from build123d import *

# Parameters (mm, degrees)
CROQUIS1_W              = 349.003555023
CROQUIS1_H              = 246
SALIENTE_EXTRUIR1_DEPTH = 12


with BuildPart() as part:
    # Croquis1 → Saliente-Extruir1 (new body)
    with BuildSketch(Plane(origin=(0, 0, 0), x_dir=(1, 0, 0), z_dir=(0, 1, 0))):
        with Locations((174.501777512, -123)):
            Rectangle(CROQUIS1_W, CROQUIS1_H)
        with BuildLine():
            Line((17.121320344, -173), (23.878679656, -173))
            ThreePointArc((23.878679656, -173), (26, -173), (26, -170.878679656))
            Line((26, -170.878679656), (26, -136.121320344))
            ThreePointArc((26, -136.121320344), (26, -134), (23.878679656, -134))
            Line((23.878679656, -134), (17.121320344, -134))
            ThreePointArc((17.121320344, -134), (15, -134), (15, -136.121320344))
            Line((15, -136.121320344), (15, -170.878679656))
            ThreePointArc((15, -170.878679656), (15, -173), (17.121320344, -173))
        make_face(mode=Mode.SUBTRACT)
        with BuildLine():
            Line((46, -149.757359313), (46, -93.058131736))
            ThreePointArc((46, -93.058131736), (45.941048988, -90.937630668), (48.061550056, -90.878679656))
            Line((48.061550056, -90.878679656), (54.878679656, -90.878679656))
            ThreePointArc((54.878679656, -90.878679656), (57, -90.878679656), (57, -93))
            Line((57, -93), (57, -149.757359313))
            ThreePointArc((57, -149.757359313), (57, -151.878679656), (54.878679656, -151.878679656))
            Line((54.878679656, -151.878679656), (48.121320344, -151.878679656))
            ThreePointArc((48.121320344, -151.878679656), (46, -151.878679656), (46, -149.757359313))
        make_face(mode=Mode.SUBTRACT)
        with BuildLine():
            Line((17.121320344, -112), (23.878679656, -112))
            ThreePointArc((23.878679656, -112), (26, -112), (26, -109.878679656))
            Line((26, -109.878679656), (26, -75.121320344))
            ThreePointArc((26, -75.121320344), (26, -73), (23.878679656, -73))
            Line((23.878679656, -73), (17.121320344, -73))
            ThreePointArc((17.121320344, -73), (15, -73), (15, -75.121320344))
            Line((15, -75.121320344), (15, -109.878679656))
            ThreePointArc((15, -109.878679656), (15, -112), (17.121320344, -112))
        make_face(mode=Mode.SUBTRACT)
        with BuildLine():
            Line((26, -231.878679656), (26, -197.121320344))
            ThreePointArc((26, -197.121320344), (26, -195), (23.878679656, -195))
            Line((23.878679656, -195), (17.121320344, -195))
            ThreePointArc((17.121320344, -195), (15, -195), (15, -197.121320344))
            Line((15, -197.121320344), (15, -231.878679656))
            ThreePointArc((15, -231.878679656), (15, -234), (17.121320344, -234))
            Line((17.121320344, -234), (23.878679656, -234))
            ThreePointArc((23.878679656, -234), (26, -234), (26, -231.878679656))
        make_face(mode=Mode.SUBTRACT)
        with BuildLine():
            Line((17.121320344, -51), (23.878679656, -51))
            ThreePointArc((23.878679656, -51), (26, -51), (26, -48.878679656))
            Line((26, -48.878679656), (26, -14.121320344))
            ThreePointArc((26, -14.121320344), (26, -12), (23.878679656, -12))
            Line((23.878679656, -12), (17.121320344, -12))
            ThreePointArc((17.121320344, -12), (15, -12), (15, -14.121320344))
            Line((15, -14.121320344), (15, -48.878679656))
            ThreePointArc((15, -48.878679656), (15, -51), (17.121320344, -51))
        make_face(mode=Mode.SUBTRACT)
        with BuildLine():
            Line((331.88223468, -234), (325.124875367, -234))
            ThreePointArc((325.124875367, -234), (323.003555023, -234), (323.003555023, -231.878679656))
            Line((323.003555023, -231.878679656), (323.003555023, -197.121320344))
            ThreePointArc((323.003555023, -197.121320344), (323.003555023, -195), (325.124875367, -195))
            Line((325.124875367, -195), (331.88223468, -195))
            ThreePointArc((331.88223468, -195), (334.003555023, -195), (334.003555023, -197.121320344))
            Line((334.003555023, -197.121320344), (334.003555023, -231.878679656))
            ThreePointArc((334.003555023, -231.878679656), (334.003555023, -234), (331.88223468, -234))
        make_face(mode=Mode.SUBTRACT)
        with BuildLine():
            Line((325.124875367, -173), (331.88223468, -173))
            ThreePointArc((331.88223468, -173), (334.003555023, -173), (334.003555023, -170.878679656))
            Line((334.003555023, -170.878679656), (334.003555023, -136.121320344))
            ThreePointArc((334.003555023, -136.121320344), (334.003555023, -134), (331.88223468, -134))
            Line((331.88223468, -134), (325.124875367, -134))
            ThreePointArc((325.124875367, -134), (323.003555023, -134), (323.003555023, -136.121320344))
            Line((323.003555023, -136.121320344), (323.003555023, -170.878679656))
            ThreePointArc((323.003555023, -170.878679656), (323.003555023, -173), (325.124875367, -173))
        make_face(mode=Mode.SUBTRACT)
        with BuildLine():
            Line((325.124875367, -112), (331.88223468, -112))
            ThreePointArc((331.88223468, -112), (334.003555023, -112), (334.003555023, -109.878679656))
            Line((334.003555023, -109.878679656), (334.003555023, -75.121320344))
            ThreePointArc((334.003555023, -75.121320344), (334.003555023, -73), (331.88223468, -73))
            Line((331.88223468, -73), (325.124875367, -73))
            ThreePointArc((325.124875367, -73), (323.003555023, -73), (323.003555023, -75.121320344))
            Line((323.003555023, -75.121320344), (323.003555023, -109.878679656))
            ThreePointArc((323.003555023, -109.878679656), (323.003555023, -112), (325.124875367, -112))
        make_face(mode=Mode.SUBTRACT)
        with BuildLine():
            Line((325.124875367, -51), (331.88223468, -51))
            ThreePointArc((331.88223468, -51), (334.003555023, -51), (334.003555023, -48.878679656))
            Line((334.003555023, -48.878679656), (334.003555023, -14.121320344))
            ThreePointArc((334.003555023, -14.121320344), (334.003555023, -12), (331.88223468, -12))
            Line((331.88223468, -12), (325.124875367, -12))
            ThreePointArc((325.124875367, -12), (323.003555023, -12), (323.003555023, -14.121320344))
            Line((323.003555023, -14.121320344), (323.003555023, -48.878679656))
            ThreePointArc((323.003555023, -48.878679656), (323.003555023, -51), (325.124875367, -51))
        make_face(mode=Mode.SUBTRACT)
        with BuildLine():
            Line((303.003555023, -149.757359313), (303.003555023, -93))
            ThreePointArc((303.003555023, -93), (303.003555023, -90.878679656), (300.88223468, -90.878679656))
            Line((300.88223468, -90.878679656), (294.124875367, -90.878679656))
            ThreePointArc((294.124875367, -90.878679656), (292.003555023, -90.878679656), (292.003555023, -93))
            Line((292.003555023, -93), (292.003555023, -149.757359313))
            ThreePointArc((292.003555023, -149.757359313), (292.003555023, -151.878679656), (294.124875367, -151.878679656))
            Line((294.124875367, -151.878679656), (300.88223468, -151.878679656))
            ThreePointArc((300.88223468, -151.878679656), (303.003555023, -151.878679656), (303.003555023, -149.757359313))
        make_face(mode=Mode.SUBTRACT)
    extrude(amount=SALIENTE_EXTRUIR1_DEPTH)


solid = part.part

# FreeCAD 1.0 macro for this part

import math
import FreeCAD as App
import Part
import Sketcher
Q = App.Units.Quantity

doc = App.newDocument("Part")
body = doc.addObject("PartDesign::Body", "Body")

sketch1 = doc.addObject("Sketcher::SketchObject", "Sketch")
body.addObject(sketch1)
sketch1.AttachmentSupport = (doc.XZ_Plane, [""])
sketch1.MapMode = "FlatFace"
sketch1.addGeometry(Part.LineSegment(App.Vector(0, 0, 0), App.Vector(0, 246, 0)), False)
sketch1.addGeometry(Part.LineSegment(App.Vector(0, 246, 0), App.Vector(349, 246, 0)), False)
sketch1.addGeometry(Part.LineSegment(App.Vector(349, 246, 0), App.Vector(349, 0, 0)), False)
sketch1.addGeometry(Part.LineSegment(App.Vector(349, 0, 0), App.Vector(0, 0, 0)), False)
sketch1.addGeometry(Part.LineSegment(App.Vector(26, 197.1, 0), App.Vector(26, 231.9, 0)), False)
sketch1.addGeometry(Part.ArcOfCircle(Part.Circle(App.Vector(24.9, 232.9, 0), App.Vector(0, 0, 1), 1.5), math.radians(-45), math.radians(135)), False)
sketch1.addGeometry(Part.LineSegment(App.Vector(23.9, 234, 0), App.Vector(17.1, 234, 0)), False)
sketch1.addGeometry(Part.ArcOfCircle(Part.Circle(App.Vector(16.1, 232.9, 0), App.Vector(0, 0, 1), 1.5), math.radians(45), math.radians(225)), False)
sketch1.addGeometry(Part.LineSegment(App.Vector(15, 231.9, 0), App.Vector(15, 197.1, 0)), False)
sketch1.addGeometry(Part.ArcOfCircle(Part.Circle(App.Vector(16.1, 196.1, 0), App.Vector(0, 0, 1), 1.5), math.radians(135), math.radians(315)), False)
sketch1.addGeometry(Part.LineSegment(App.Vector(17.1, 195, 0), App.Vector(23.9, 195, 0)), False)
sketch1.addGeometry(Part.ArcOfCircle(Part.Circle(App.Vector(24.9, 196.1, 0), App.Vector(0, 0, 1), 1.5), math.radians(-135), math.radians(45)), False)
sketch1.addGeometry(Part.LineSegment(App.Vector(23.9, 173, 0), App.Vector(17.1, 173, 0)), False)
sketch1.addGeometry(Part.ArcOfCircle(Part.Circle(App.Vector(16.1, 171.9, 0), App.Vector(0, 0, 1), 1.5), math.radians(45), math.radians(225)), False)
sketch1.addGeometry(Part.LineSegment(App.Vector(15, 170.9, 0), App.Vector(15, 136.1, 0)), False)
sketch1.addGeometry(Part.ArcOfCircle(Part.Circle(App.Vector(16.1, 135.1, 0), App.Vector(0, 0, 1), 1.5), math.radians(135), math.radians(315)), False)
sketch1.addGeometry(Part.LineSegment(App.Vector(17.1, 134, 0), App.Vector(23.9, 134, 0)), False)
sketch1.addGeometry(Part.ArcOfCircle(Part.Circle(App.Vector(24.9, 135.1, 0), App.Vector(0, 0, 1), 1.5), math.radians(-135), math.radians(45)), False)
sketch1.addGeometry(Part.LineSegment(App.Vector(26, 136.1, 0), App.Vector(26, 170.9, 0)), False)
sketch1.addGeometry(Part.ArcOfCircle(Part.Circle(App.Vector(24.9, 171.9, 0), App.Vector(0, 0, 1), 1.5), math.radians(-45), math.radians(135)), False)
sketch1.addGeometry(Part.ArcOfCircle(Part.Circle(App.Vector(332.9, 232.9, 0), App.Vector(0, 0, 1), 1.5), math.radians(-45), math.radians(135)), False)
sketch1.addGeometry(Part.LineSegment(App.Vector(331.9, 234, 0), App.Vector(325.1, 234, 0)), False)
sketch1.addGeometry(Part.ArcOfCircle(Part.Circle(App.Vector(324.1, 232.9, 0), App.Vector(0, 0, 1), 1.5), math.radians(45), math.radians(225)), False)
sketch1.addGeometry(Part.LineSegment(App.Vector(323, 231.9, 0), App.Vector(323, 197.1, 0)), False)
sketch1.addGeometry(Part.ArcOfCircle(Part.Circle(App.Vector(324.1, 196.1, 0), App.Vector(0, 0, 1), 1.5), math.radians(135), math.radians(315)), False)
sketch1.addGeometry(Part.LineSegment(App.Vector(325.1, 195, 0), App.Vector(331.9, 195, 0)), False)
sketch1.addGeometry(Part.ArcOfCircle(Part.Circle(App.Vector(332.9, 196.1, 0), App.Vector(0, 0, 1), 1.5), math.radians(-135), math.radians(45)), False)
sketch1.addGeometry(Part.LineSegment(App.Vector(334, 197.1, 0), App.Vector(334, 231.9, 0)), False)
sketch1.addGeometry(Part.LineSegment(App.Vector(331.9, 173, 0), App.Vector(325.1, 173, 0)), False)
sketch1.addGeometry(Part.ArcOfCircle(Part.Circle(App.Vector(324.1, 171.9, 0), App.Vector(0, 0, 1), 1.5), math.radians(45), math.radians(225)), False)
sketch1.addGeometry(Part.LineSegment(App.Vector(323, 170.9, 0), App.Vector(323, 136.1, 0)), False)
sketch1.addGeometry(Part.ArcOfCircle(Part.Circle(App.Vector(324.1, 135.1, 0), App.Vector(0, 0, 1), 1.5), math.radians(135), math.radians(315)), False)
sketch1.addGeometry(Part.LineSegment(App.Vector(325.1, 134, 0), App.Vector(331.9, 134, 0)), False)
sketch1.addGeometry(Part.ArcOfCircle(Part.Circle(App.Vector(332.9, 135.1, 0), App.Vector(0, 0, 1), 1.5), math.radians(-135), math.radians(45)), False)
sketch1.addGeometry(Part.LineSegment(App.Vector(334, 136.1, 0), App.Vector(334, 170.9, 0)), False)
sketch1.addGeometry(Part.ArcOfCircle(Part.Circle(App.Vector(332.9, 171.9, 0), App.Vector(0, 0, 1), 1.5), math.radians(-45), math.radians(135)), False)
sketch1.addGeometry(Part.ArcOfCircle(Part.Circle(App.Vector(47.1, 150.8, 0), App.Vector(0, 0, 1), 1.5), math.radians(45), math.radians(225)), False)
sketch1.addGeometry(Part.LineSegment(App.Vector(46, 149.8, 0), App.Vector(46, 93.1, 0)), False)
sketch1.addGeometry(Part.ArcOfCircle(Part.Circle(App.Vector(47, 92, 0), App.Vector(0, 0, 1), 1.5), math.radians(133), math.radians(313)), False)
sketch1.addGeometry(Part.LineSegment(App.Vector(48.1, 90.9, 0), App.Vector(54.9, 90.9, 0)), False)
sketch1.addGeometry(Part.ArcOfCircle(Part.Circle(App.Vector(55.9, 91.9, 0), App.Vector(0, 0, 1), 1.5), math.radians(-135), math.radians(45)), False)
sketch1.addGeometry(Part.LineSegment(App.Vector(57, 93, 0), App.Vector(57, 149.8, 0)), False)
sketch1.addGeometry(Part.ArcOfCircle(Part.Circle(App.Vector(55.9, 150.8, 0), App.Vector(0, 0, 1), 1.5), math.radians(-45), math.radians(135)), False)
sketch1.addGeometry(Part.LineSegment(App.Vector(54.9, 151.9, 0), App.Vector(48.1, 151.9, 0)), False)
sketch1.addGeometry(Part.LineSegment(App.Vector(23.9, 112, 0), App.Vector(17.1, 112, 0)), False)
sketch1.addGeometry(Part.ArcOfCircle(Part.Circle(App.Vector(16.1, 110.9, 0), App.Vector(0, 0, 1), 1.5), math.radians(45), math.radians(225)), False)
sketch1.addGeometry(Part.LineSegment(App.Vector(15, 109.9, 0), App.Vector(15, 75.1, 0)), False)
sketch1.addGeometry(Part.ArcOfCircle(Part.Circle(App.Vector(16.1, 74.1, 0), App.Vector(0, 0, 1), 1.5), math.radians(135), math.radians(315)), False)
sketch1.addGeometry(Part.LineSegment(App.Vector(17.1, 73, 0), App.Vector(23.9, 73, 0)), False)
sketch1.addGeometry(Part.ArcOfCircle(Part.Circle(App.Vector(24.9, 74.1, 0), App.Vector(0, 0, 1), 1.5), math.radians(-135), math.radians(45)), False)
sketch1.addGeometry(Part.LineSegment(App.Vector(26, 75.1, 0), App.Vector(26, 109.9, 0)), False)
sketch1.addGeometry(Part.ArcOfCircle(Part.Circle(App.Vector(24.9, 110.9, 0), App.Vector(0, 0, 1), 1.5), math.radians(-45), math.radians(135)), False)
sketch1.addGeometry(Part.LineSegment(App.Vector(23.9, 51, 0), App.Vector(17.1, 51, 0)), False)
sketch1.addGeometry(Part.ArcOfCircle(Part.Circle(App.Vector(16.1, 49.9, 0), App.Vector(0, 0, 1), 1.5), math.radians(45), math.radians(225)), False)
sketch1.addGeometry(Part.LineSegment(App.Vector(15, 48.9, 0), App.Vector(15, 14.1, 0)), False)
sketch1.addGeometry(Part.ArcOfCircle(Part.Circle(App.Vector(16.1, 13.1, 0), App.Vector(0, 0, 1), 1.5), math.radians(135), math.radians(315)), False)
sketch1.addGeometry(Part.LineSegment(App.Vector(17.1, 12, 0), App.Vector(23.9, 12, 0)), False)
sketch1.addGeometry(Part.ArcOfCircle(Part.Circle(App.Vector(24.9, 13.1, 0), App.Vector(0, 0, 1), 1.5), math.radians(-135), math.radians(45)), False)
sketch1.addGeometry(Part.LineSegment(App.Vector(26, 14.1, 0), App.Vector(26, 48.9, 0)), False)
sketch1.addGeometry(Part.ArcOfCircle(Part.Circle(App.Vector(24.9, 49.9, 0), App.Vector(0, 0, 1), 1.5), math.radians(-45), math.radians(135)), False)
sketch1.addGeometry(Part.LineSegment(App.Vector(303, 93, 0), App.Vector(303, 149.8, 0)), False)
sketch1.addGeometry(Part.ArcOfCircle(Part.Circle(App.Vector(301.9, 150.8, 0), App.Vector(0, 0, 1), 1.5), math.radians(-45), math.radians(135)), False)
sketch1.addGeometry(Part.LineSegment(App.Vector(300.9, 151.9, 0), App.Vector(294.1, 151.9, 0)), False)
sketch1.addGeometry(Part.ArcOfCircle(Part.Circle(App.Vector(293.1, 150.8, 0), App.Vector(0, 0, 1), 1.5), math.radians(45), math.radians(225)), False)
sketch1.addGeometry(Part.LineSegment(App.Vector(292, 149.8, 0), App.Vector(292, 93, 0)), False)
sketch1.addGeometry(Part.ArcOfCircle(Part.Circle(App.Vector(293.1, 91.9, 0), App.Vector(0, 0, 1), 1.5), math.radians(135), math.radians(315)), False)
sketch1.addGeometry(Part.LineSegment(App.Vector(294.1, 90.9, 0), App.Vector(300.9, 90.9, 0)), False)
sketch1.addGeometry(Part.ArcOfCircle(Part.Circle(App.Vector(301.9, 91.9, 0), App.Vector(0, 0, 1), 1.5), math.radians(-135), math.radians(45)), False)
sketch1.addGeometry(Part.LineSegment(App.Vector(331.9, 112, 0), App.Vector(325.1, 112, 0)), False)
sketch1.addGeometry(Part.ArcOfCircle(Part.Circle(App.Vector(324.1, 110.9, 0), App.Vector(0, 0, 1), 1.5), math.radians(45), math.radians(225)), False)
sketch1.addGeometry(Part.LineSegment(App.Vector(323, 109.9, 0), App.Vector(323, 75.1, 0)), False)
sketch1.addGeometry(Part.ArcOfCircle(Part.Circle(App.Vector(324.1, 74.1, 0), App.Vector(0, 0, 1), 1.5), math.radians(135), math.radians(315)), False)
sketch1.addGeometry(Part.LineSegment(App.Vector(325.1, 73, 0), App.Vector(331.9, 73, 0)), False)
sketch1.addGeometry(Part.ArcOfCircle(Part.Circle(App.Vector(332.9, 74.1, 0), App.Vector(0, 0, 1), 1.5), math.radians(-135), math.radians(45)), False)
sketch1.addGeometry(Part.LineSegment(App.Vector(334, 75.1, 0), App.Vector(334, 109.9, 0)), False)
sketch1.addGeometry(Part.ArcOfCircle(Part.Circle(App.Vector(332.9, 110.9, 0), App.Vector(0, 0, 1), 1.5), math.radians(-45), math.radians(135)), False)
sketch1.addGeometry(Part.LineSegment(App.Vector(331.9, 51, 0), App.Vector(325.1, 51, 0)), False)
sketch1.addGeometry(Part.ArcOfCircle(Part.Circle(App.Vector(324.1, 49.9, 0), App.Vector(0, 0, 1), 1.5), math.radians(45), math.radians(225)), False)
sketch1.addGeometry(Part.LineSegment(App.Vector(323, 48.9, 0), App.Vector(323, 14.1, 0)), False)
sketch1.addGeometry(Part.ArcOfCircle(Part.Circle(App.Vector(324.1, 13.1, 0), App.Vector(0, 0, 1), 1.5), math.radians(135), math.radians(315)), False)
sketch1.addGeometry(Part.LineSegment(App.Vector(325.1, 12, 0), App.Vector(331.9, 12, 0)), False)
sketch1.addGeometry(Part.ArcOfCircle(Part.Circle(App.Vector(332.9, 13.1, 0), App.Vector(0, 0, 1), 1.5), math.radians(-135), math.radians(45)), False)
sketch1.addGeometry(Part.LineSegment(App.Vector(334, 14.1, 0), App.Vector(334, 48.9, 0)), False)
sketch1.addGeometry(Part.ArcOfCircle(Part.Circle(App.Vector(332.9, 49.9, 0), App.Vector(0, 0, 1), 1.5), math.radians(-45), math.radians(135)), False)
sketch1.addConstraint(Sketcher.Constraint("Coincident", 0, 2, 1, 1))
sketch1.addConstraint(Sketcher.Constraint("Coincident", 1, 2, 2, 1))
sketch1.addConstraint(Sketcher.Constraint("Coincident", 2, 2, 3, 1))
sketch1.addConstraint(Sketcher.Constraint("Coincident", 3, 2, 0, 1))
sketch1.addConstraint(Sketcher.Constraint("Coincident", 4, 2, 5, 1))
sketch1.addConstraint(Sketcher.Constraint("Coincident", 5, 2, 6, 1))
sketch1.addConstraint(Sketcher.Constraint("Coincident", 6, 2, 7, 1))
sketch1.addConstraint(Sketcher.Constraint("Coincident", 7, 2, 8, 1))
sketch1.addConstraint(Sketcher.Constraint("Coincident", 8, 2, 9, 1))
sketch1.addConstraint(Sketcher.Constraint("Coincident", 9, 2, 10, 1))
sketch1.addConstraint(Sketcher.Constraint("Coincident", 10, 2, 11, 1))
sketch1.addConstraint(Sketcher.Constraint("Coincident", 11, 2, 4, 1))
sketch1.addConstraint(Sketcher.Constraint("Coincident", 12, 2, 13, 1))
sketch1.addConstraint(Sketcher.Constraint("Coincident", 13, 2, 14, 1))
sketch1.addConstraint(Sketcher.Constraint("Coincident", 14, 2, 15, 1))
sketch1.addConstraint(Sketcher.Constraint("Coincident", 15, 2, 16, 1))
sketch1.addConstraint(Sketcher.Constraint("Coincident", 16, 2, 17, 1))
sketch1.addConstraint(Sketcher.Constraint("Coincident", 17, 2, 18, 1))
sketch1.addConstraint(Sketcher.Constraint("Coincident", 18, 2, 19, 1))
sketch1.addConstraint(Sketcher.Constraint("Coincident", 19, 2, 12, 1))
sketch1.addConstraint(Sketcher.Constraint("Coincident", 20, 2, 21, 1))
sketch1.addConstraint(Sketcher.Constraint("Coincident", 21, 2, 22, 1))
sketch1.addConstraint(Sketcher.Constraint("Coincident", 22, 2, 23, 1))
sketch1.addConstraint(Sketcher.Constraint("Coincident", 23, 2, 24, 1))
sketch1.addConstraint(Sketcher.Constraint("Coincident", 24, 2, 25, 1))
sketch1.addConstraint(Sketcher.Constraint("Coincident", 25, 2, 26, 1))
sketch1.addConstraint(Sketcher.Constraint("Coincident", 26, 2, 27, 1))
sketch1.addConstraint(Sketcher.Constraint("Coincident", 27, 2, 20, 1))
sketch1.addConstraint(Sketcher.Constraint("Coincident", 28, 2, 29, 1))
sketch1.addConstraint(Sketcher.Constraint("Coincident", 29, 2, 30, 1))
sketch1.addConstraint(Sketcher.Constraint("Coincident", 30, 2, 31, 1))
sketch1.addConstraint(Sketcher.Constraint("Coincident", 31, 2, 32, 1))
sketch1.addConstraint(Sketcher.Constraint("Coincident", 32, 2, 33, 1))
sketch1.addConstraint(Sketcher.Constraint("Coincident", 33, 2, 34, 1))
sketch1.addConstraint(Sketcher.Constraint("Coincident", 34, 2, 35, 1))
sketch1.addConstraint(Sketcher.Constraint("Coincident", 35, 2, 28, 1))
sketch1.addConstraint(Sketcher.Constraint("Coincident", 36, 2, 37, 1))
sketch1.addConstraint(Sketcher.Constraint("Coincident", 37, 2, 38, 1))
sketch1.addConstraint(Sketcher.Constraint("Coincident", 38, 2, 39, 1))
sketch1.addConstraint(Sketcher.Constraint("Coincident", 39, 2, 40, 1))
sketch1.addConstraint(Sketcher.Constraint("Coincident", 40, 2, 41, 1))
sketch1.addConstraint(Sketcher.Constraint("Coincident", 41, 2, 42, 1))
sketch1.addConstraint(Sketcher.Constraint("Coincident", 42, 2, 43, 1))
sketch1.addConstraint(Sketcher.Constraint("Coincident", 43, 2, 36, 1))
sketch1.addConstraint(Sketcher.Constraint("Coincident", 44, 2, 45, 1))
sketch1.addConstraint(Sketcher.Constraint("Coincident", 45, 2, 46, 1))
sketch1.addConstraint(Sketcher.Constraint("Coincident", 46, 2, 47, 1))
sketch1.addConstraint(Sketcher.Constraint("Coincident", 47, 2, 48, 1))
sketch1.addConstraint(Sketcher.Constraint("Coincident", 48, 2, 49, 1))
sketch1.addConstraint(Sketcher.Constraint("Coincident", 49, 2, 50, 1))
sketch1.addConstraint(Sketcher.Constraint("Coincident", 50, 2, 51, 1))
sketch1.addConstraint(Sketcher.Constraint("Coincident", 51, 2, 44, 1))
sketch1.addConstraint(Sketcher.Constraint("Coincident", 52, 2, 53, 1))
sketch1.addConstraint(Sketcher.Constraint("Coincident", 53, 2, 54, 1))
sketch1.addConstraint(Sketcher.Constraint("Coincident", 54, 2, 55, 1))
sketch1.addConstraint(Sketcher.Constraint("Coincident", 55, 2, 56, 1))
sketch1.addConstraint(Sketcher.Constraint("Coincident", 56, 2, 57, 1))
sketch1.addConstraint(Sketcher.Constraint("Coincident", 57, 2, 58, 1))
sketch1.addConstraint(Sketcher.Constraint("Coincident", 58, 2, 59, 1))
sketch1.addConstraint(Sketcher.Constraint("Coincident", 59, 2, 52, 1))
sketch1.addConstraint(Sketcher.Constraint("Coincident", 60, 2, 61, 1))
sketch1.addConstraint(Sketcher.Constraint("Coincident", 61, 2, 62, 1))
sketch1.addConstraint(Sketcher.Constraint("Coincident", 62, 2, 63, 1))
sketch1.addConstraint(Sketcher.Constraint("Coincident", 63, 2, 64, 1))
sketch1.addConstraint(Sketcher.Constraint("Coincident", 64, 2, 65, 1))
sketch1.addConstraint(Sketcher.Constraint("Coincident", 65, 2, 66, 1))
sketch1.addConstraint(Sketcher.Constraint("Coincident", 66, 2, 67, 1))
sketch1.addConstraint(Sketcher.Constraint("Coincident", 67, 2, 60, 1))
sketch1.addConstraint(Sketcher.Constraint("Coincident", 68, 2, 69, 1))
sketch1.addConstraint(Sketcher.Constraint("Coincident", 69, 2, 70, 1))
sketch1.addConstraint(Sketcher.Constraint("Coincident", 70, 2, 71, 1))
sketch1.addConstraint(Sketcher.Constraint("Coincident", 71, 2, 72, 1))
sketch1.addConstraint(Sketcher.Constraint("Coincident", 72, 2, 73, 1))
sketch1.addConstraint(Sketcher.Constraint("Coincident", 73, 2, 74, 1))
sketch1.addConstraint(Sketcher.Constraint("Coincident", 74, 2, 75, 1))
sketch1.addConstraint(Sketcher.Constraint("Coincident", 75, 2, 68, 1))
sketch1.addConstraint(Sketcher.Constraint("Coincident", 76, 2, 77, 1))
sketch1.addConstraint(Sketcher.Constraint("Coincident", 77, 2, 78, 1))
sketch1.addConstraint(Sketcher.Constraint("Coincident", 78, 2, 79, 1))
sketch1.addConstraint(Sketcher.Constraint("Coincident", 79, 2, 80, 1))
sketch1.addConstraint(Sketcher.Constraint("Coincident", 80, 2, 81, 1))
sketch1.addConstraint(Sketcher.Constraint("Coincident", 81, 2, 82, 1))
sketch1.addConstraint(Sketcher.Constraint("Coincident", 82, 2, 83, 1))
sketch1.addConstraint(Sketcher.Constraint("Coincident", 83, 2, 76, 1))
sketch1.addConstraint(Sketcher.Constraint("Vertical", 0))
sketch1.addConstraint(Sketcher.Constraint("Horizontal", 1))
sketch1.addConstraint(Sketcher.Constraint("Vertical", 2))
sketch1.addConstraint(Sketcher.Constraint("Horizontal", 3))
sketch1.addConstraint(Sketcher.Constraint("Vertical", 4))
sketch1.addConstraint(Sketcher.Constraint("Horizontal", 6))
sketch1.addConstraint(Sketcher.Constraint("Vertical", 8))
sketch1.addConstraint(Sketcher.Constraint("Horizontal", 10))
sketch1.addConstraint(Sketcher.Constraint("Horizontal", 12))
sketch1.addConstraint(Sketcher.Constraint("Vertical", 14))
sketch1.addConstraint(Sketcher.Constraint("Horizontal", 16))
sketch1.addConstraint(Sketcher.Constraint("Vertical", 18))
sketch1.addConstraint(Sketcher.Constraint("Horizontal", 21))
sketch1.addConstraint(Sketcher.Constraint("Vertical", 23))
sketch1.addConstraint(Sketcher.Constraint("Horizontal", 25))
sketch1.addConstraint(Sketcher.Constraint("Vertical", 27))
sketch1.addConstraint(Sketcher.Constraint("Horizontal", 28))
sketch1.addConstraint(Sketcher.Constraint("Vertical", 30))
sketch1.addConstraint(Sketcher.Constraint("Horizontal", 32))
sketch1.addConstraint(Sketcher.Constraint("Vertical", 34))
sketch1.addConstraint(Sketcher.Constraint("Vertical", 37))
sketch1.addConstraint(Sketcher.Constraint("Horizontal", 39))
sketch1.addConstraint(Sketcher.Constraint("Vertical", 41))
sketch1.addConstraint(Sketcher.Constraint("Horizontal", 43))
sketch1.addConstraint(Sketcher.Constraint("Horizontal", 44))
sketch1.addConstraint(Sketcher.Constraint("Vertical", 46))
sketch1.addConstraint(Sketcher.Constraint("Horizontal", 48))
sketch1.addConstraint(Sketcher.Constraint("Vertical", 50))
sketch1.addConstraint(Sketcher.Constraint("Horizontal", 52))
sketch1.addConstraint(Sketcher.Constraint("Vertical", 54))
sketch1.addConstraint(Sketcher.Constraint("Horizontal", 56))
sketch1.addConstraint(Sketcher.Constraint("Vertical", 58))
sketch1.addConstraint(Sketcher.Constraint("Vertical", 60))
sketch1.addConstraint(Sketcher.Constraint("Horizontal", 62))
sketch1.addConstraint(Sketcher.Constraint("Vertical", 64))
sketch1.addConstraint(Sketcher.Constraint("Horizontal", 66))
sketch1.addConstraint(Sketcher.Constraint("Horizontal", 68))
sketch1.addConstraint(Sketcher.Constraint("Vertical", 70))
sketch1.addConstraint(Sketcher.Constraint("Horizontal", 72))
sketch1.addConstraint(Sketcher.Constraint("Vertical", 74))
sketch1.addConstraint(Sketcher.Constraint("Horizontal", 76))
sketch1.addConstraint(Sketcher.Constraint("Vertical", 78))
sketch1.addConstraint(Sketcher.Constraint("Horizontal", 80))
sketch1.addConstraint(Sketcher.Constraint("Vertical", 82))
sketch1.addConstraint(Sketcher.Constraint("Coincident", 3, 2, -1, 1))
sketch1.addConstraint(Sketcher.Constraint("Equal", 5, 7))
sketch1.addConstraint(Sketcher.Constraint("Equal", 7, 9))
sketch1.addConstraint(Sketcher.Constraint("Equal", 9, 11))
sketch1.addConstraint(Sketcher.Constraint("Equal", 11, 13))
sketch1.addConstraint(Sketcher.Constraint("Equal", 13, 15))
sketch1.addConstraint(Sketcher.Constraint("Equal", 15, 17))
sketch1.addConstraint(Sketcher.Constraint("Equal", 17, 19))
sketch1.addConstraint(Sketcher.Constraint("Equal", 19, 20))
sketch1.addConstraint(Sketcher.Constraint("Equal", 20, 22))
sketch1.addConstraint(Sketcher.Constraint("Equal", 22, 24))
sketch1.addConstraint(Sketcher.Constraint("Equal", 24, 26))
sketch1.addConstraint(Sketcher.Constraint("Equal", 26, 29))
sketch1.addConstraint(Sketcher.Constraint("Equal", 29, 31))
sketch1.addConstraint(Sketcher.Constraint("Equal", 31, 33))
sketch1.addConstraint(Sketcher.Constraint("Equal", 33, 35))
sketch1.addConstraint(Sketcher.Constraint("Equal", 35, 36))
sketch1.addConstraint(Sketcher.Constraint("Equal", 36, 38))
sketch1.addConstraint(Sketcher.Constraint("Equal", 38, 40))
sketch1.addConstraint(Sketcher.Constraint("Equal", 40, 42))
sketch1.addConstraint(Sketcher.Constraint("Equal", 42, 45))
sketch1.addConstraint(Sketcher.Constraint("Equal", 45, 47))
sketch1.addConstraint(Sketcher.Constraint("Equal", 47, 49))
sketch1.addConstraint(Sketcher.Constraint("Equal", 49, 51))
sketch1.addConstraint(Sketcher.Constraint("Equal", 51, 53))
sketch1.addConstraint(Sketcher.Constraint("Equal", 53, 55))
sketch1.addConstraint(Sketcher.Constraint("Equal", 55, 57))
sketch1.addConstraint(Sketcher.Constraint("Equal", 57, 59))
sketch1.addConstraint(Sketcher.Constraint("Equal", 59, 61))
sketch1.addConstraint(Sketcher.Constraint("Equal", 61, 63))
sketch1.addConstraint(Sketcher.Constraint("Equal", 63, 65))
sketch1.addConstraint(Sketcher.Constraint("Equal", 65, 67))
sketch1.addConstraint(Sketcher.Constraint("Equal", 67, 69))
sketch1.addConstraint(Sketcher.Constraint("Equal", 69, 71))
sketch1.addConstraint(Sketcher.Constraint("Equal", 71, 73))
sketch1.addConstraint(Sketcher.Constraint("Equal", 73, 75))
sketch1.addConstraint(Sketcher.Constraint("Equal", 75, 77))
sketch1.addConstraint(Sketcher.Constraint("Equal", 77, 79))
sketch1.addConstraint(Sketcher.Constraint("Equal", 79, 81))
sketch1.addConstraint(Sketcher.Constraint("Equal", 81, 83))
sketch1.addConstraint(Sketcher.Constraint("Horizontal", 5, 3, 7, 3))
sketch1.addConstraint(Sketcher.Constraint("Horizontal", 9, 3, 11, 3))
sketch1.addConstraint(Sketcher.Constraint("Horizontal", 15, 3, 17, 3))
sketch1.addConstraint(Sketcher.Constraint("Horizontal", 13, 3, 19, 3))
sketch1.addConstraint(Sketcher.Constraint("Horizontal", 7, 3, 20, 3))
sketch1.addConstraint(Sketcher.Constraint("Horizontal", 20, 3, 22, 3))
sketch1.addConstraint(Sketcher.Constraint("Horizontal", 11, 3, 24, 3))
sketch1.addConstraint(Sketcher.Constraint("Horizontal", 24, 3, 26, 3))
sketch1.addConstraint(Sketcher.Constraint("Horizontal", 19, 3, 29, 3))
sketch1.addConstraint(Sketcher.Constraint("Horizontal", 17, 3, 31, 3))
sketch1.addConstraint(Sketcher.Constraint("Horizontal", 31, 3, 33, 3))
sketch1.addConstraint(Sketcher.Constraint("Horizontal", 29, 3, 35, 3))
sketch1.addConstraint(Sketcher.Constraint("Horizontal", 36, 3, 42, 3))
sketch1.addConstraint(Sketcher.Constraint("Horizontal", 47, 3, 49, 3))
sketch1.addConstraint(Sketcher.Constraint("Horizontal", 45, 3, 51, 3))
sketch1.addConstraint(Sketcher.Constraint("Horizontal", 55, 3, 57, 3))
sketch1.addConstraint(Sketcher.Constraint("Horizontal", 53, 3, 59, 3))
sketch1.addConstraint(Sketcher.Constraint("Horizontal", 42, 3, 61, 3))
sketch1.addConstraint(Sketcher.Constraint("Horizontal", 61, 3, 63, 3))
sketch1.addConstraint(Sketcher.Constraint("Horizontal", 40, 3, 65, 3))
sketch1.addConstraint(Sketcher.Constraint("Horizontal", 65, 3, 67, 3))
sketch1.addConstraint(Sketcher.Constraint("Horizontal", 51, 3, 69, 3))
sketch1.addConstraint(Sketcher.Constraint("Horizontal", 49, 3, 71, 3))
sketch1.addConstraint(Sketcher.Constraint("Horizontal", 71, 3, 73, 3))
sketch1.addConstraint(Sketcher.Constraint("Horizontal", 69, 3, 75, 3))
sketch1.addConstraint(Sketcher.Constraint("Horizontal", 59, 3, 77, 3))
sketch1.addConstraint(Sketcher.Constraint("Horizontal", 57, 3, 79, 3))
sketch1.addConstraint(Sketcher.Constraint("Horizontal", 79, 3, 81, 3))
sketch1.addConstraint(Sketcher.Constraint("Horizontal", 77, 3, 83, 3))
sketch1.addConstraint(Sketcher.Constraint("Horizontal", 4, 2, 7, 2))
sketch1.addConstraint(Sketcher.Constraint("Horizontal", 8, 2, 11, 2))
sketch1.addConstraint(Sketcher.Constraint("Horizontal", 14, 2, 17, 2))
sketch1.addConstraint(Sketcher.Constraint("Horizontal", 13, 2, 18, 2))
sketch1.addConstraint(Sketcher.Constraint("Horizontal", 6, 2, 20, 2))
sketch1.addConstraint(Sketcher.Constraint("Horizontal", 7, 2, 22, 2))
sketch1.addConstraint(Sketcher.Constraint("Horizontal", 11, 2, 23, 2))
sketch1.addConstraint(Sketcher.Constraint("Horizontal", 10, 2, 24, 2))
sketch1.addConstraint(Sketcher.Constraint("Horizontal", 23, 2, 26, 2))
sketch1.addConstraint(Sketcher.Constraint("Horizontal", 22, 2, 27, 2))
sketch1.addConstraint(Sketcher.Constraint("Horizontal", 19, 2, 28, 2))
sketch1.addConstraint(Sketcher.Constraint("Horizontal", 18, 2, 29, 2))
sketch1.addConstraint(Sketcher.Constraint("Horizontal", 17, 2, 30, 2))
sketch1.addConstraint(Sketcher.Constraint("Horizontal", 16, 2, 31, 2))
sketch1.addConstraint(Sketcher.Constraint("Horizontal", 30, 2, 33, 2))
sketch1.addConstraint(Sketcher.Constraint("Horizontal", 29, 2, 34, 2))
sketch1.addConstraint(Sketcher.Constraint("Horizontal", 36, 2, 41, 2))
sketch1.addConstraint(Sketcher.Constraint("Horizontal", 46, 2, 49, 2))
sketch1.addConstraint(Sketcher.Constraint("Horizontal", 45, 2, 50, 2))
sketch1.addConstraint(Sketcher.Constraint("Horizontal", 54, 2, 57, 2))
sketch1.addConstraint(Sketcher.Constraint("Horizontal", 53, 2, 58, 2))
sketch1.addConstraint(Sketcher.Constraint("Horizontal", 41, 2, 60, 2))
sketch1.addConstraint(Sketcher.Constraint("Horizontal", 43, 2, 61, 2))
sketch1.addConstraint(Sketcher.Constraint("Horizontal", 60, 2, 63, 2))
sketch1.addConstraint(Sketcher.Constraint("Horizontal", 40, 2, 64, 2))
sketch1.addConstraint(Sketcher.Constraint("Horizontal", 39, 2, 65, 2))
sketch1.addConstraint(Sketcher.Constraint("Horizontal", 64, 2, 67, 2))
sketch1.addConstraint(Sketcher.Constraint("Horizontal", 51, 2, 68, 2))
sketch1.addConstraint(Sketcher.Constraint("Horizontal", 50, 2, 69, 2))
sketch1.addConstraint(Sketcher.Constraint("Horizontal", 49, 2, 70, 2))
sketch1.addConstraint(Sketcher.Constraint("Horizontal", 48, 2, 71, 2))
sketch1.addConstraint(Sketcher.Constraint("Horizontal", 70, 2, 73, 2))
sketch1.addConstraint(Sketcher.Constraint("Horizontal", 69, 2, 74, 2))
sketch1.addConstraint(Sketcher.Constraint("Horizontal", 59, 2, 76, 2))
sketch1.addConstraint(Sketcher.Constraint("Horizontal", 58, 2, 77, 2))
sketch1.addConstraint(Sketcher.Constraint("Horizontal", 57, 2, 78, 2))
sketch1.addConstraint(Sketcher.Constraint("Horizontal", 56, 2, 79, 2))
sketch1.addConstraint(Sketcher.Constraint("Horizontal", 78, 2, 81, 2))
sketch1.addConstraint(Sketcher.Constraint("Horizontal", 77, 2, 82, 2))
sketch1.addConstraint(Sketcher.Constraint("Vertical", 7, 3, 9, 3))
sketch1.addConstraint(Sketcher.Constraint("Vertical", 9, 3, 13, 3))
sketch1.addConstraint(Sketcher.Constraint("Vertical", 13, 3, 15, 3))
sketch1.addConstraint(Sketcher.Constraint("Vertical", 11, 3, 17, 3))
sketch1.addConstraint(Sketcher.Constraint("Vertical", 24, 3, 29, 3))
sketch1.addConstraint(Sketcher.Constraint("Vertical", 26, 3, 33, 3))
sketch1.addConstraint(Sketcher.Constraint("Vertical", 40, 3, 42, 3))
sketch1.addConstraint(Sketcher.Constraint("Vertical", 15, 3, 45, 3))
sketch1.addConstraint(Sketcher.Constraint("Vertical", 45, 3, 47, 3))
sketch1.addConstraint(Sketcher.Constraint("Vertical", 19, 3, 49, 3))
sketch1.addConstraint(Sketcher.Constraint("Vertical", 47, 3, 53, 3))
sketch1.addConstraint(Sketcher.Constraint("Vertical", 53, 3, 55, 3))
sketch1.addConstraint(Sketcher.Constraint("Vertical", 51, 3, 57, 3))
sketch1.addConstraint(Sketcher.Constraint("Vertical", 31, 3, 69, 3))
sketch1.addConstraint(Sketcher.Constraint("Vertical", 35, 3, 73, 3))
sketch1.addConstraint(Sketcher.Constraint("Vertical", 71, 3, 77, 3))
sketch1.addConstraint(Sketcher.Constraint("Vertical", 75, 3, 81, 3))
sketch1.addConstraint(Sketcher.Constraint("Vertical", 6, 2, 9, 2))
sketch1.addConstraint(Sketcher.Constraint("Vertical", 9, 2, 12, 2))
sketch1.addConstraint(Sketcher.Constraint("Vertical", 8, 2, 13, 2))
sketch1.addConstraint(Sketcher.Constraint("Vertical", 12, 2, 15, 2))
sketch1.addConstraint(Sketcher.Constraint("Vertical", 39, 2, 42, 2))
sketch1.addConstraint(Sketcher.Constraint("Vertical", 15, 2, 44, 2))
sketch1.addConstraint(Sketcher.Constraint("Vertical", 14, 2, 45, 2))
sketch1.addConstraint(Sketcher.Constraint("Vertical", 44, 2, 47, 2))
sketch1.addConstraint(Sketcher.Constraint("Vertical", 47, 2, 52, 2))
sketch1.addConstraint(Sketcher.Constraint("Vertical", 46, 2, 53, 2))
sketch1.addConstraint(Sketcher.Constraint("Vertical", 52, 2, 55, 2))
sketch1.addConstraint(Sketcher.Constraint("Equal", 16, 21))
sketch1.addConstraint(Sketcher.Constraint("Equal", 32, 43))
sketch1.addConstraint(Sketcher.Constraint("Equal", 56, 62))
sketch1.addConstraint(Sketcher.Constraint("Equal", 8, 14))
sketch1.addConstraint(Sketcher.Constraint("Equal", 34, 46))
sketch1.addConstraint(Sketcher.Constraint("Equal", 50, 54))
sketch1.addConstraint(Sketcher.Constraint("Radius", 5, Q("1.5 mm")))
sketch1.addConstraint(Sketcher.Constraint("DistanceY", 0, 1, 0, 2, Q("246 mm")))
sketch1.addConstraint(Sketcher.Constraint("DistanceX", -1, 1, 4, 2, Q("26 mm")))
sketch1.addConstraint(Sketcher.Constraint("DistanceY", -1, 1, 5, 2, Q("234 mm")))
sketch1.addConstraint(Sketcher.Constraint("DistanceX", -1, 1, 7, 2, Q("15 mm")))
sketch1.addConstraint(Sketcher.Constraint("DistanceY", -1, 1, 9, 2, Q("195 mm")))
sketch1.addConstraint(Sketcher.Constraint("DistanceY", -1, 1, 12, 2, Q("173 mm")))
sketch1.addConstraint(Sketcher.Constraint("DistanceX", -1, 1, 36, 2, Q("46 mm")))
sketch1.addConstraint(Sketcher.Constraint("DistanceX", -1, 1, 40, 2, Q("57 mm")))
sketch1.addConstraint(Sketcher.Constraint("DistanceY", -1, 1, 40, 2, Q("93 mm")))
sketch1.addConstraint(Sketcher.Constraint("DistanceY", -1, 1, 44, 2, Q("112 mm")))
sketch1.addConstraint(Sketcher.Constraint("DistanceY", -1, 1, 52, 2, Q("51 mm")))
sketch1.addConstraint(Sketcher.Constraint("DistanceX", 6, 2, 6, 1, Q("6.757359 mm")))
sketch1.addConstraint(Sketcher.Constraint("DistanceX", 39, 1, 39, 2, Q("6.81713 mm")))
sketch1.addConstraint(Sketcher.Constraint("DistanceY", 41, 1, 41, 2, Q("56.757359 mm")))
sketch1.addConstraint(Sketcher.Constraint("DistanceX", 1, 1, 1, 2, Q("349.003555 mm")))
sketch1.addConstraint(Sketcher.Constraint("DistanceX", -1, 1, 5, 3, Q("24.93934 mm")))
sketch1.addConstraint(Sketcher.Constraint("DistanceX", -1, 1, 36, 3, Q("47.06066 mm")))
sketch1.addConstraint(Sketcher.Constraint("DistanceX", -1, 1, 20, 3, Q("332.942895 mm")))
sketch1.addConstraint(Sketcher.Constraint("DistanceX", -1, 1, 38, 3, Q("47.030775 mm")))
sketch1.addConstraint(Sketcher.Constraint("DistanceX", -1, 1, 61, 3, Q("301.942895 mm")))
pad1 = doc.addObject("PartDesign::Pad", "Pad")
body.addObject(pad1)
pad1.Profile = sketch1
pad1.Length = 12
pad1.Reversed = True

doc.recompute()
